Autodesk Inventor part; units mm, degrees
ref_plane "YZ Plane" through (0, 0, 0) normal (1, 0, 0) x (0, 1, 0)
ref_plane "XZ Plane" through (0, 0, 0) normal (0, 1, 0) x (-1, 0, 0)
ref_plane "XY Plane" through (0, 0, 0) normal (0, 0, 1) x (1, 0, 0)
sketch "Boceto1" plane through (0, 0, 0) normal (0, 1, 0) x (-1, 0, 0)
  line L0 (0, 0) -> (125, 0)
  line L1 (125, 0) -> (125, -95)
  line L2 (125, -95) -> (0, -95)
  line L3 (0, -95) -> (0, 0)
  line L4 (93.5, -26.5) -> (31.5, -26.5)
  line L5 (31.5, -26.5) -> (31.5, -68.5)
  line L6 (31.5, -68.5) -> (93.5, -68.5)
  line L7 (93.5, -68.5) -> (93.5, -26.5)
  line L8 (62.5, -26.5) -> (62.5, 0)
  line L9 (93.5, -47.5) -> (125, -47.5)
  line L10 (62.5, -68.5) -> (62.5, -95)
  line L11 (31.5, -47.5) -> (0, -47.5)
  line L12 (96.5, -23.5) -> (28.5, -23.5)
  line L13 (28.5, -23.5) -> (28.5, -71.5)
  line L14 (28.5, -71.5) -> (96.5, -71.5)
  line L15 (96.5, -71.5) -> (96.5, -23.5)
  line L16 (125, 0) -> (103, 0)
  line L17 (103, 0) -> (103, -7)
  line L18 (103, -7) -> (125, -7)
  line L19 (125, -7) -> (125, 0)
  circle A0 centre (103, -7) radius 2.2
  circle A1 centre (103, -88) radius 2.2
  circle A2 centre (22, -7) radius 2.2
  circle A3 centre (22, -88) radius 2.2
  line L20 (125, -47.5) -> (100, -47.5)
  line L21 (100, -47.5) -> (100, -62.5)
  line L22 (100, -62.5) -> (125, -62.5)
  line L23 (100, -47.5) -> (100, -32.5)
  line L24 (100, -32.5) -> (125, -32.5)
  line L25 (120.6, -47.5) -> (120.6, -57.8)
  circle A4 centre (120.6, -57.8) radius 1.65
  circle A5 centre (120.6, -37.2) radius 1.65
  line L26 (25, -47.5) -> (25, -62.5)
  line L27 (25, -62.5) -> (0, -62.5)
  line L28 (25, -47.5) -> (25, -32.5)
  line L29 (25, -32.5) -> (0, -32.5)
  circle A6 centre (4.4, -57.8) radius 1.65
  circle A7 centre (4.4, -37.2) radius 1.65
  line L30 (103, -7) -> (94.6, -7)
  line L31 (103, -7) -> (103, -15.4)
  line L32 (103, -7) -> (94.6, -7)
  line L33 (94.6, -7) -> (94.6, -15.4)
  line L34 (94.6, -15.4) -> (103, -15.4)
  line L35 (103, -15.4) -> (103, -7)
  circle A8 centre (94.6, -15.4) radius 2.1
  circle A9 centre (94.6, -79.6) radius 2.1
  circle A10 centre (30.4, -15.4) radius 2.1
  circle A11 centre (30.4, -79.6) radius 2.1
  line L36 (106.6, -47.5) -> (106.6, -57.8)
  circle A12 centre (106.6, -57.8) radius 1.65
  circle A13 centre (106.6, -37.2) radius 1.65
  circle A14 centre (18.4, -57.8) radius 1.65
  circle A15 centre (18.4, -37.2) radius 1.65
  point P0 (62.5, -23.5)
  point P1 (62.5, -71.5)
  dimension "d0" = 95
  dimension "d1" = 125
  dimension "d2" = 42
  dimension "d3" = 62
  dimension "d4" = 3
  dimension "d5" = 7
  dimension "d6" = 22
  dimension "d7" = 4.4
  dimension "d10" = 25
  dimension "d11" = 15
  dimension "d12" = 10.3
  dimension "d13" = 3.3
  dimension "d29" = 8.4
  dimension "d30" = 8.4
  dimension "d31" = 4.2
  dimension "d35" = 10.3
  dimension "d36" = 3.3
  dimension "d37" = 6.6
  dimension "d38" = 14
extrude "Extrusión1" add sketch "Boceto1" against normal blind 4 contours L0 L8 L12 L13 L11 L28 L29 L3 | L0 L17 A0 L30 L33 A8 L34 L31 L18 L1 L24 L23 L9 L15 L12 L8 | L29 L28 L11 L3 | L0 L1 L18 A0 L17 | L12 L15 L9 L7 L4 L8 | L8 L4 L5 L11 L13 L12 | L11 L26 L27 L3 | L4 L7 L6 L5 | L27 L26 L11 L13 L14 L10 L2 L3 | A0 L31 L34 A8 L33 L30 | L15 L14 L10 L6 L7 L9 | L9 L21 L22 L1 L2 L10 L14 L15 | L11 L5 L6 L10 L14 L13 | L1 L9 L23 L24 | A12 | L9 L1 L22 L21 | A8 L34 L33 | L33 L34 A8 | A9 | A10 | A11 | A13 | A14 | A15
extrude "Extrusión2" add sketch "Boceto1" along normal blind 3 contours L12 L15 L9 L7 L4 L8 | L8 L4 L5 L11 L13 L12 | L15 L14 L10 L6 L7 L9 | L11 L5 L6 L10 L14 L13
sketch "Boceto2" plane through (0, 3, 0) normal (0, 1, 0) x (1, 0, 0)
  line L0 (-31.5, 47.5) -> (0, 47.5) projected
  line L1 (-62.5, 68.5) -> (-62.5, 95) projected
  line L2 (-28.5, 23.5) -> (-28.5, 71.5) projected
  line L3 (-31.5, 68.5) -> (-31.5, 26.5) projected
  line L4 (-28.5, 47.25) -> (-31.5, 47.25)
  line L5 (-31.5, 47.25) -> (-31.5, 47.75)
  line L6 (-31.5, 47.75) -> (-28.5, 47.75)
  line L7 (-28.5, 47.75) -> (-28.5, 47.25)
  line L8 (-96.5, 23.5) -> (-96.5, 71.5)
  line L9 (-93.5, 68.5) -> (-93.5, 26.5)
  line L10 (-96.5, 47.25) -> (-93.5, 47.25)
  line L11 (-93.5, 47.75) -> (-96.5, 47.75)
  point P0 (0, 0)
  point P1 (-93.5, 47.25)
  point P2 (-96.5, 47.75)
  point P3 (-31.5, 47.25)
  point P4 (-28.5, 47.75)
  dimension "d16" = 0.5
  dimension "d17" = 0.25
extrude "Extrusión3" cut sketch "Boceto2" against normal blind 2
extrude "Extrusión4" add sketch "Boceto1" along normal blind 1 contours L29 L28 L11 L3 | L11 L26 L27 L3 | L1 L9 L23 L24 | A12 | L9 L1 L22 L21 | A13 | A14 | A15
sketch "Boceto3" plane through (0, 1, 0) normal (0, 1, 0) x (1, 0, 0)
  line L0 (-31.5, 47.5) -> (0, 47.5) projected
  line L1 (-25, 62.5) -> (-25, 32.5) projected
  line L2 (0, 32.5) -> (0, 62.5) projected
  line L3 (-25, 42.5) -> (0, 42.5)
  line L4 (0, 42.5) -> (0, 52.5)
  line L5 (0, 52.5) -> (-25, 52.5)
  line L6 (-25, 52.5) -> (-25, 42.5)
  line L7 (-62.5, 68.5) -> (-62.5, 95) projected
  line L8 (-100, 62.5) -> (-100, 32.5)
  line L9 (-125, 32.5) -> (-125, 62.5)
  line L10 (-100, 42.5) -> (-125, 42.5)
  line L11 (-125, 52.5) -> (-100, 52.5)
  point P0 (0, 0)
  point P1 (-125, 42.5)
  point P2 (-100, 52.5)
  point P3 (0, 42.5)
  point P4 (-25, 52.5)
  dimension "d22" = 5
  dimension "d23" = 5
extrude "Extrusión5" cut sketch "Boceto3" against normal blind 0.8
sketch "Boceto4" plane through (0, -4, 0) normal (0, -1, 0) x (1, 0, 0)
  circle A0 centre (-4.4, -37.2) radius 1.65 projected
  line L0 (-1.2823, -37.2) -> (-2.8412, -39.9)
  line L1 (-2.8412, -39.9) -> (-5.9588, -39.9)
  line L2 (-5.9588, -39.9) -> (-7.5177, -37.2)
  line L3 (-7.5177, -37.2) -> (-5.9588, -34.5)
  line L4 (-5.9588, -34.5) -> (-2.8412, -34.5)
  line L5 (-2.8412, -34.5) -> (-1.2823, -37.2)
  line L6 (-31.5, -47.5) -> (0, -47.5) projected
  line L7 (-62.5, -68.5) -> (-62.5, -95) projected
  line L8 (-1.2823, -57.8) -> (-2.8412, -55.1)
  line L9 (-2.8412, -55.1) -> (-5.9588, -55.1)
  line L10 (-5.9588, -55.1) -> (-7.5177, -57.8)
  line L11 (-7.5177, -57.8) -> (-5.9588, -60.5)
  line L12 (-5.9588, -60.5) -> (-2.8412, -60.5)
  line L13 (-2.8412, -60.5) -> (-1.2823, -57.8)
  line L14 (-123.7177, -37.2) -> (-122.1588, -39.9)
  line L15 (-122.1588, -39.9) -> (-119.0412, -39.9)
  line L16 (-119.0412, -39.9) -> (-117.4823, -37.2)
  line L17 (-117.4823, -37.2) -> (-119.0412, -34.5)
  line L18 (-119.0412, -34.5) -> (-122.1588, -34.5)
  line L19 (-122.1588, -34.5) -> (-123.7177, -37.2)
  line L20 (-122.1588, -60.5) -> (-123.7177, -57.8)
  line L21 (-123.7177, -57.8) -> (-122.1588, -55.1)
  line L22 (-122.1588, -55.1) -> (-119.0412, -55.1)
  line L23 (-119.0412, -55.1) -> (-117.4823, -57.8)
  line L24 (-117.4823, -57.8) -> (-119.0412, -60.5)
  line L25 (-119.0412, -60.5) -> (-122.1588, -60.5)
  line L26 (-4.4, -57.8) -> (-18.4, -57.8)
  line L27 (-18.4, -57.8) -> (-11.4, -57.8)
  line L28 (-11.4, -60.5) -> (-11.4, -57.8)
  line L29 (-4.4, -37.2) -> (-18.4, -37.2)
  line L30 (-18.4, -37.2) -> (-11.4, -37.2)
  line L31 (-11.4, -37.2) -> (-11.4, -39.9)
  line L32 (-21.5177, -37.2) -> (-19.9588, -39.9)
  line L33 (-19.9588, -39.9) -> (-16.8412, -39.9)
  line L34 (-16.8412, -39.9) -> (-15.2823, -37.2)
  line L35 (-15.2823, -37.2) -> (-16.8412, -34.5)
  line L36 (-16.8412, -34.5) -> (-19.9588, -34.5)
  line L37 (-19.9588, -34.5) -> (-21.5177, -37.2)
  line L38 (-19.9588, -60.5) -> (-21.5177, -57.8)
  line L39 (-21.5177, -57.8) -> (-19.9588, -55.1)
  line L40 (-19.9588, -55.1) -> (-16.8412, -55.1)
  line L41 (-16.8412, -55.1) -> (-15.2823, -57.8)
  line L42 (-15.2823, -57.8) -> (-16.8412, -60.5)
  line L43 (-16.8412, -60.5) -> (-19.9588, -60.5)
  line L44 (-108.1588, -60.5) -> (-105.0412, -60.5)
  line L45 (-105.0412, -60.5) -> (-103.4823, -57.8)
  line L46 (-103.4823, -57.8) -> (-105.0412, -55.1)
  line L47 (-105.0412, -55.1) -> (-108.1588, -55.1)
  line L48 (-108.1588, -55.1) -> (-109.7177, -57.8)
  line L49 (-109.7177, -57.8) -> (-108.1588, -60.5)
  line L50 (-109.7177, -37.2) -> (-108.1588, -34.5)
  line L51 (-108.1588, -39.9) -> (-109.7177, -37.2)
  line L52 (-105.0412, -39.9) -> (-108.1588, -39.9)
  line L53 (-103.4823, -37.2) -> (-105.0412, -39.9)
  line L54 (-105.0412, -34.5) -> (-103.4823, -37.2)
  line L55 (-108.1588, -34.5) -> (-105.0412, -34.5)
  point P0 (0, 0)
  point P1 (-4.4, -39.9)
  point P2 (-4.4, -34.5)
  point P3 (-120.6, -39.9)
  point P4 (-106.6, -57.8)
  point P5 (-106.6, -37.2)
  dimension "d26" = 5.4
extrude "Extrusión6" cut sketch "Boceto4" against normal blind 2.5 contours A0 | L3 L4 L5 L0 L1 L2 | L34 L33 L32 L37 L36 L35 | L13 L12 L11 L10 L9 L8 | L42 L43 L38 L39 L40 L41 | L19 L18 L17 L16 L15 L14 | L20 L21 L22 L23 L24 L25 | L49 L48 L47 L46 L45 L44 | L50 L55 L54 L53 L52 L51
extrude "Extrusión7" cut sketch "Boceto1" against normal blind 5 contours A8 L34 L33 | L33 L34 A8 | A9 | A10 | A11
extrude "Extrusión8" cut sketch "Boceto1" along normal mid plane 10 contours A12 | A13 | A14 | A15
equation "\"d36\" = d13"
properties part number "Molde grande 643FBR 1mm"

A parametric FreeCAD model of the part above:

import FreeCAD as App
import Part
import Sketcher

V = App.Vector
Q = App.Units.Quantity

doc = App.newDocument("Part")
body = doc.addObject("PartDesign::Body", "Body")

# Sketch on XZ plane
sketch1 = doc.addObject("Sketcher::SketchObject", "Sketch")
body.addObject(sketch1)
sketch1.AttachmentSupport = (doc.XZ_Plane, [""])
sketch1.MapMode = "FlatFace"
sketch1.addGeometry([
    Part.LineSegment(V(0, 0, 0), V(0, -95, 0)),  # 0
    Part.LineSegment(V(0, -95, 0), V(-125, -95, 0)),  # 1
    Part.LineSegment(V(-125, -95, 0), V(-125, 0, 0)),  # 2
    Part.LineSegment(V(-125, 0, 0), V(0, 0, 0)),  # 3
    Part.Circle(V(-22, -7, 0), V(0, 0, 1), 2.2),  # 4
    Part.Circle(V(-103, -7, 0), V(0, 0, 1), 2.2),  # 5
    Part.Circle(V(-22, -88, 0), V(0, 0, 1), 2.2),  # 6
    Part.Circle(V(-4.4, -37.2, 0), V(0, 0, 1), 1.6),  # 7
    Part.Circle(V(-120.6, -37.2, 0), V(0, 0, 1), 1.6),  # 8
    Part.Circle(V(-103, -88, 0), V(0, 0, 1), 2.2),  # 9
    Part.Circle(V(-4.4, -57.8, 0), V(0, 0, 1), 1.6),  # 10
    Part.Circle(V(-120.6, -57.8, 0), V(0, 0, 1), 1.6),  # 11
], False)
sketch1.addConstraint([
    Sketcher.Constraint("Coincident", 0, 2, 1, 1),
    Sketcher.Constraint("Coincident", 1, 2, 2, 1),
    Sketcher.Constraint("Coincident", 2, 2, 3, 1),
    Sketcher.Constraint("Coincident", 3, 2, 0, 1),
    Sketcher.Constraint("Vertical", 0),
    Sketcher.Constraint("Horizontal", 1),
    Sketcher.Constraint("Vertical", 2),
    Sketcher.Constraint("Horizontal", 3),
    Sketcher.Constraint("Coincident", 3, 2, -1, 1),
    Sketcher.Constraint("Equal", 4, 5),
    Sketcher.Constraint("Equal", 5, 6),
    Sketcher.Constraint("Equal", 7, 8),
    Sketcher.Constraint("Equal", 6, 9),
    Sketcher.Constraint("Equal", 8, 10),
    Sketcher.Constraint("Equal", 10, 11),
    Sketcher.Constraint("Horizontal", 4, 3, 5, 3),
    Sketcher.Constraint("Horizontal", 7, 3, 8, 3),
    Sketcher.Constraint("Horizontal", 6, 3, 9, 3),
    Sketcher.Constraint("Horizontal", 10, 3, 11, 3),
    Sketcher.Constraint("Vertical", 4, 3, 6, 3),
    Sketcher.Constraint("Vertical", 5, 3, 9, 3),
    Sketcher.Constraint("Vertical", 7, 3, 10, 3),
    Sketcher.Constraint("Vertical", 8, 3, 11, 3),
    Sketcher.Constraint("Diameter", 4, 4.4),
    Sketcher.Constraint("Diameter", 7, 3.3),
    Sketcher.Constraint("DistanceX", 1, 2, 1, 1, 125.0),
    Sketcher.Constraint("DistanceY", 0, 2, 0, 1, 95.0),
    Sketcher.Constraint("DistanceX", 4, 3, -1, 1, 22.0),
    Sketcher.Constraint("DistanceY", 4, 3, -1, 1, 7.0),
    Sketcher.Constraint("DistanceY", 0, 2, 6, 3, 7.0),
    Sketcher.Constraint("DistanceX", 1, 2, 9, 3, 22.0),
    Sketcher.Constraint("DistanceX", 7, 3, -1, 1, 4.4),
    Sketcher.Constraint("DistanceX", 1, 2, 11, 3, 4.4),
    Sketcher.Constraint("DistanceY", 7, 3, -1, 1, 37.2),
    Sketcher.Constraint("DistanceY", 10, 3, -1, 1, 57.8),
])
pad1 = doc.addObject("PartDesign::Pad", "Pad")
body.addObject(pad1)
pad1.Profile = sketch1
pad1.Length = 4

# Sketch on XZ plane
sketch2 = doc.addObject("Sketcher::SketchObject", "Sketch001")
body.addObject(sketch2)
sketch2.AttachmentSupport = (doc.XZ_Plane, [""])
sketch2.MapMode = "FlatFace"
sketch2.addGeometry([
    Part.LineSegment(V(-96, -24, 0), V(-28, -24, 0)),  # 0
    Part.LineSegment(V(-28, -24, 0), V(-28, -72, 0)),  # 1
    Part.LineSegment(V(-28, -72, 0), V(-96, -72, 0)),  # 2
    Part.LineSegment(V(-96, -72, 0), V(-96, -24, 0)),  # 3
    Part.LineSegment(V(-94, -26, 0), V(-94, -68, 0)),  # 4
    Part.LineSegment(V(-94, -68, 0), V(-32, -68, 0)),  # 5
    Part.LineSegment(V(-32, -68, 0), V(-32, -26, 0)),  # 6
    Part.LineSegment(V(-32, -26, 0), V(-94, -26, 0)),  # 7
], False)
sketch2.addConstraint([
    Sketcher.Constraint("Coincident", 0, 2, 1, 1),
    Sketcher.Constraint("Coincident", 1, 2, 2, 1),
    Sketcher.Constraint("Coincident", 2, 2, 3, 1),
    Sketcher.Constraint("Coincident", 3, 2, 0, 1),
    Sketcher.Constraint("Coincident", 4, 2, 5, 1),
    Sketcher.Constraint("Coincident", 5, 2, 6, 1),
    Sketcher.Constraint("Coincident", 6, 2, 7, 1),
    Sketcher.Constraint("Coincident", 7, 2, 4, 1),
    Sketcher.Constraint("Horizontal", 0),
    Sketcher.Constraint("Vertical", 1),
    Sketcher.Constraint("Horizontal", 2),
    Sketcher.Constraint("Vertical", 3),
    Sketcher.Constraint("Vertical", 4),
    Sketcher.Constraint("Horizontal", 5),
    Sketcher.Constraint("Vertical", 6),
    Sketcher.Constraint("Horizontal", 7),
    Sketcher.Constraint("DistanceX", 5, 1, 5, 2, 62.0),
    Sketcher.Constraint("DistanceY", 4, 2, 4, 1, 42.0),
    Sketcher.Constraint("DistanceX", 2, 2, 4, 2, 3.0),
    Sketcher.Constraint("DistanceY", 2, 2, 4, 2, 3.0),
    Sketcher.Constraint("DistanceX", 5, 2, 1, 2, 3.0),
    Sketcher.Constraint("DistanceY", 6, 2, 0, 2, 3.0),
    Sketcher.Constraint("DistanceX", 0, 2, -1, 1, 28.5),
    Sketcher.Constraint("DistanceY", 0, 2, -1, 1, 23.5),
])
pad2 = doc.addObject("PartDesign::Pad", "Pad001")
body.addObject(pad2)
pad2.Profile = sketch2
pad2.Length = 3
pad2.Reversed = True

# Sketch on XZ plane
sketch3 = doc.addObject("Sketcher::SketchObject", "Sketch002")
body.addObject(sketch3)
sketch3.AttachmentSupport = (doc.XZ_Plane, [""])
sketch3.MapMode = "FlatFace"
sketch3.AttachmentOffset = App.Placement(V(0, 0, -3), App.Rotation())
sketch3.addGeometry([
    Part.LineSegment(V(-31.5, -47.8, 0), V(-31.5, -47.2, 0)),  # 0
    Part.LineSegment(V(-31.5, -47.2, 0), V(-28.5, -47.2, 0)),  # 1
    Part.LineSegment(V(-28.5, -47.2, 0), V(-28.5, -47.8, 0)),  # 2
    Part.LineSegment(V(-28.5, -47.8, 0), V(-31.5, -47.8, 0)),  # 3
    Part.LineSegment(V(-96.5, -47.8, 0), V(-96.5, -47.2, 0)),  # 4
    Part.LineSegment(V(-96.5, -47.2, 0), V(-93.5, -47.2, 0)),  # 5
    Part.LineSegment(V(-93.5, -47.2, 0), V(-93.5, -47.8, 0)),  # 6
    Part.LineSegment(V(-93.5, -47.8, 0), V(-96.5, -47.8, 0)),  # 7
], False)
sketch3.addConstraint([
    Sketcher.Constraint("Coincident", 0, 2, 1, 1),
    Sketcher.Constraint("Coincident", 1, 2, 2, 1),
    Sketcher.Constraint("Coincident", 2, 2, 3, 1),
    Sketcher.Constraint("Coincident", 3, 2, 0, 1),
    Sketcher.Constraint("Coincident", 4, 2, 5, 1),
    Sketcher.Constraint("Coincident", 5, 2, 6, 1),
    Sketcher.Constraint("Coincident", 6, 2, 7, 1),
    Sketcher.Constraint("Coincident", 7, 2, 4, 1),
    Sketcher.Constraint("Vertical", 0),
    Sketcher.Constraint("Horizontal", 1),
    Sketcher.Constraint("Vertical", 2),
    Sketcher.Constraint("Horizontal", 3),
    Sketcher.Constraint("Vertical", 4),
    Sketcher.Constraint("Horizontal", 5),
    Sketcher.Constraint("Vertical", 6),
    Sketcher.Constraint("Horizontal", 7),
    Sketcher.Constraint("Horizontal", 1, 2, 4, 2),
    Sketcher.Constraint("Horizontal", 3, 2, 6, 2),
    Sketcher.Constraint("Equal", 3, 5),
    Sketcher.Constraint("DistanceY", 0, 1, 0, 2, 0.5),
    Sketcher.Constraint("DistanceX", 1, 1, 1, 2, 3.0),
    Sketcher.Constraint("DistanceX", 4, 2, 0, 2, 65.0),
    Sketcher.Constraint("DistanceX", 0, 2, -1, 1, 31.5),
    Sketcher.Constraint("DistanceY", 0, 2, -1, 1, 47.25),
])
pocket1 = doc.addObject("PartDesign::Pocket", "Pocket")
body.addObject(pocket1)
pocket1.Profile = sketch3
pocket1.Length = 2
pocket1.Reversed = True

# Sketch on XZ plane
sketch4 = doc.addObject("Sketcher::SketchObject", "Sketch003")
body.addObject(sketch4)
sketch4.AttachmentSupport = (doc.XZ_Plane, [""])
sketch4.MapMode = "FlatFace"
sketch4.addGeometry([
    Part.LineSegment(V(-25, -32.5, 0), V(0, -32.5, 0)),  # 0
    Part.LineSegment(V(0, -32.5, 0), V(0, -62.5, 0)),  # 1
    Part.LineSegment(V(0, -62.5, 0), V(-25, -62.5, 0)),  # 2
    Part.LineSegment(V(-25, -62.5, 0), V(-25, -32.5, 0)),  # 3
    Part.Circle(V(-4.4, -37.2, 0), V(0, 0, 1), 1.6),  # 4
    Part.Circle(V(-4.4, -57.8, 0), V(0, 0, 1), 1.6),  # 5
    Part.LineSegment(V(-125, -32.5, 0), V(-100, -32.5, 0)),  # 6
    Part.LineSegment(V(-100, -32.5, 0), V(-100, -62.5, 0)),  # 7
    Part.LineSegment(V(-100, -62.5, 0), V(-125, -62.5, 0)),  # 8
    Part.LineSegment(V(-125, -62.5, 0), V(-125, -32.5, 0)),  # 9
    Part.Circle(V(-120.6, -37.2, 0), V(0, 0, 1), 1.6),  # 10
    Part.Circle(V(-120.6, -57.8, 0), V(0, 0, 1), 1.6),  # 11
], False)
sketch4.addConstraint([
    Sketcher.Constraint("Coincident", 0, 2, 1, 1),
    Sketcher.Constraint("Coincident", 1, 2, 2, 1),
    Sketcher.Constraint("Coincident", 2, 2, 3, 1),
    Sketcher.Constraint("Coincident", 3, 2, 0, 1),
    Sketcher.Constraint("Coincident", 6, 2, 7, 1),
    Sketcher.Constraint("Coincident", 7, 2, 8, 1),
    Sketcher.Constraint("Coincident", 8, 2, 9, 1),
    Sketcher.Constraint("Coincident", 9, 2, 6, 1),
    Sketcher.Constraint("Horizontal", 0),
    Sketcher.Constraint("Vertical", 1),
    Sketcher.Constraint("Horizontal", 2),
    Sketcher.Constraint("Vertical", 3),
    Sketcher.Constraint("Horizontal", 6),
    Sketcher.Constraint("Vertical", 7),
    Sketcher.Constraint("Horizontal", 8),
    Sketcher.Constraint("Vertical", 9),
    Sketcher.Constraint("Equal", 4, 5),
    Sketcher.Constraint("Equal", 5, 10),
    Sketcher.Constraint("Equal", 10, 11),
    Sketcher.Constraint("PointOnObject", 0, 2, -2),
    Sketcher.Constraint("Horizontal", 4, 3, 10, 3),
    Sketcher.Constraint("Horizontal", 5, 3, 11, 3),
    Sketcher.Constraint("Horizontal", 3, 2, 6, 2),
    Sketcher.Constraint("Horizontal", 2, 2, 7, 2),
    Sketcher.Constraint("Vertical", 4, 3, 5, 3),
    Sketcher.Constraint("Vertical", 10, 3, 11, 3),
    Sketcher.Constraint("Equal", 2, 6),
    Sketcher.Constraint("Diameter", 4, 3.3),
    Sketcher.Constraint("DistanceX", 0, 1, 0, 2, 25.0),
    Sketcher.Constraint("DistanceX", 8, 2, -1, 1, 125.0),
    Sketcher.Constraint("DistanceX", 4, 3, -1, 1, 4.4),
    Sketcher.Constraint("DistanceX", 8, 2, 11, 3, 4.4),
    Sketcher.Constraint("DistanceY", 1, 2, 1, 1, 30.0),
    Sketcher.Constraint("DistanceY", 4, 3, -1, 1, 37.2),
    Sketcher.Constraint("DistanceY", 5, 3, -1, 1, 57.8),
    Sketcher.Constraint("DistanceY", 0, 2, -1, 1, 32.5),
])
pad3 = doc.addObject("PartDesign::Pad", "Pad002")
body.addObject(pad3)
pad3.Profile = sketch4
pad3.Length = 1
pad3.Reversed = True

# Sketch on XZ plane
sketch5 = doc.addObject("Sketcher::SketchObject", "Sketch004")
body.addObject(sketch5)
sketch5.AttachmentSupport = (doc.XZ_Plane, [""])
sketch5.MapMode = "FlatFace"
sketch5.AttachmentOffset = App.Placement(V(0, 0, -1), App.Rotation())
sketch5.addGeometry([
    Part.LineSegment(V(-25, -52, 0), V(-25, -42, 0)),  # 0
    Part.LineSegment(V(-25, -42, 0), V(0, -42, 0)),  # 1
    Part.LineSegment(V(0, -42, 0), V(0, -52, 0)),  # 2
    Part.LineSegment(V(0, -52, 0), V(-25, -52, 0)),  # 3
    Part.LineSegment(V(-100, -42, 0), V(-100, -52, 0)),  # 4
    Part.LineSegment(V(-100, -52, 0), V(-125, -52, 0)),  # 5
    Part.LineSegment(V(-125, -52, 0), V(-125, -42, 0)),  # 6
    Part.LineSegment(V(-125, -42, 0), V(-100, -42, 0)),  # 7
], False)
sketch5.addConstraint([
    Sketcher.Constraint("Coincident", 0, 2, 1, 1),
    Sketcher.Constraint("Coincident", 1, 2, 2, 1),
    Sketcher.Constraint("Coincident", 2, 2, 3, 1),
    Sketcher.Constraint("Coincident", 3, 2, 0, 1),
    Sketcher.Constraint("Coincident", 4, 2, 5, 1),
    Sketcher.Constraint("Coincident", 5, 2, 6, 1),
    Sketcher.Constraint("Coincident", 6, 2, 7, 1),
    Sketcher.Constraint("Coincident", 7, 2, 4, 1),
    Sketcher.Constraint("Vertical", 0),
    Sketcher.Constraint("Horizontal", 1),
    Sketcher.Constraint("Vertical", 2),
    Sketcher.Constraint("Horizontal", 3),
    Sketcher.Constraint("Vertical", 4),
    Sketcher.Constraint("Horizontal", 5),
    Sketcher.Constraint("Vertical", 6),
    Sketcher.Constraint("Horizontal", 7),
    Sketcher.Constraint("PointOnObject", 1, 2, -2),
    Sketcher.Constraint("Horizontal", 3, 2, 4, 2),
    Sketcher.Constraint("Horizontal", 1, 2, 6, 2),
    Sketcher.Constraint("Equal", 3, 5),
    Sketcher.Constraint("DistanceX", 1, 1, 1, 2, 25.0),
    Sketcher.Constraint("DistanceY", 0, 1, 0, 2, 10.0),
    Sketcher.Constraint("DistanceX", 4, 2, -1, 1, 100.0),
    Sketcher.Constraint("DistanceY", 0, 2, -1, 1, 42.5),
])
pocket2 = doc.addObject("PartDesign::Pocket", "Pocket001")
body.addObject(pocket2)
pocket2.Profile = sketch5
pocket2.Length = 0.8
pocket2.Reversed = True

# Sketch on XZ plane
sketch6 = doc.addObject("Sketcher::SketchObject", "Sketch005")
body.addObject(sketch6)
sketch6.AttachmentSupport = (doc.XZ_Plane, [""])
sketch6.MapMode = "FlatFace"
sketch6.AttachmentOffset = App.Placement(V(0, 0, 4), App.Rotation())
sketch6.addGeometry([
    Part.LineSegment(V(-6, -34.5, 0), V(-7.5, -37.2, 0)),  # 0
    Part.LineSegment(V(-7.5, -37.2, 0), V(-6, -39.9, 0)),  # 1
    Part.LineSegment(V(-6, -39.9, 0), V(-2.8, -39.9, 0)),  # 2
    Part.LineSegment(V(-2.8, -39.9, 0), V(-1.3, -37.2, 0)),  # 3
    Part.LineSegment(V(-1.3, -37.2, 0), V(-2.8, -34.5, 0)),  # 4
    Part.LineSegment(V(-2.8, -34.5, 0), V(-6, -34.5, 0)),  # 5
    Part.LineSegment(V(-16.8, -39.9, 0), V(-15.3, -37.2, 0)),  # 6
    Part.LineSegment(V(-15.3, -37.2, 0), V(-16.8, -34.5, 0)),  # 7
    Part.LineSegment(V(-16.8, -34.5, 0), V(-20, -34.5, 0)),  # 8
    Part.LineSegment(V(-20, -34.5, 0), V(-21.5, -37.2, 0)),  # 9
    Part.LineSegment(V(-21.5, -37.2, 0), V(-20, -39.9, 0)),  # 10
    Part.LineSegment(V(-20, -39.9, 0), V(-16.8, -39.9, 0)),  # 11
    Part.LineSegment(V(-2.8, -60.5, 0), V(-1.3, -57.8, 0)),  # 12
    Part.LineSegment(V(-1.3, -57.8, 0), V(-2.8, -55.1, 0)),  # 13
    Part.LineSegment(V(-2.8, -55.1, 0), V(-6, -55.1, 0)),  # 14
    Part.LineSegment(V(-6, -55.1, 0), V(-7.5, -57.8, 0)),  # 15
    Part.LineSegment(V(-7.5, -57.8, 0), V(-6, -60.5, 0)),  # 16
    Part.LineSegment(V(-6, -60.5, 0), V(-2.8, -60.5, 0)),  # 17
    Part.LineSegment(V(-16.8, -60.5, 0), V(-15.3, -57.8, 0)),  # 18
    Part.LineSegment(V(-15.3, -57.8, 0), V(-16.8, -55.1, 0)),  # 19
    Part.LineSegment(V(-16.8, -55.1, 0), V(-20, -55.1, 0)),  # 20
    Part.LineSegment(V(-20, -55.1, 0), V(-21.5, -57.8, 0)),  # 21
    Part.LineSegment(V(-21.5, -57.8, 0), V(-20, -60.5, 0)),  # 22
    Part.LineSegment(V(-20, -60.5, 0), V(-16.8, -60.5, 0)),  # 23
    Part.LineSegment(V(-122.2, -34.5, 0), V(-123.7, -37.2, 0)),  # 24
    Part.LineSegment(V(-123.7, -37.2, 0), V(-122.2, -39.9, 0)),  # 25
    Part.LineSegment(V(-122.2, -39.9, 0), V(-119, -39.9, 0)),  # 26
    Part.LineSegment(V(-119, -39.9, 0), V(-117.5, -37.2, 0)),  # 27
    Part.LineSegment(V(-117.5, -37.2, 0), V(-119, -34.5, 0)),  # 28
    Part.LineSegment(V(-119, -34.5, 0), V(-122.2, -34.5, 0)),  # 29
    Part.LineSegment(V(-123.7, -57.8, 0), V(-122.2, -60.5, 0)),  # 30
    Part.LineSegment(V(-122.2, -60.5, 0), V(-119, -60.5, 0)),  # 31
    Part.LineSegment(V(-119, -60.5, 0), V(-117.5, -57.8, 0)),  # 32
    Part.LineSegment(V(-117.5, -57.8, 0), V(-119, -55.1, 0)),  # 33
    Part.LineSegment(V(-119, -55.1, 0), V(-122.2, -55.1, 0)),  # 34
    Part.LineSegment(V(-122.2, -55.1, 0), V(-123.7, -57.8, 0)),  # 35
    Part.LineSegment(V(-109.7, -57.8, 0), V(-108.2, -60.5, 0)),  # 36
    Part.LineSegment(V(-108.2, -60.5, 0), V(-105, -60.5, 0)),  # 37
    Part.LineSegment(V(-105, -60.5, 0), V(-103.5, -57.8, 0)),  # 38
    Part.LineSegment(V(-103.5, -57.8, 0), V(-105, -55.1, 0)),  # 39
    Part.LineSegment(V(-105, -55.1, 0), V(-108.2, -55.1, 0)),  # 40
    Part.LineSegment(V(-108.2, -55.1, 0), V(-109.7, -57.8, 0)),  # 41
    Part.LineSegment(V(-108.2, -34.5, 0), V(-109.7, -37.2, 0)),  # 42
    Part.LineSegment(V(-109.7, -37.2, 0), V(-108.2, -39.9, 0)),  # 43
    Part.LineSegment(V(-108.2, -39.9, 0), V(-105, -39.9, 0)),  # 44
    Part.LineSegment(V(-105, -39.9, 0), V(-103.5, -37.2, 0)),  # 45
    Part.LineSegment(V(-103.5, -37.2, 0), V(-105, -34.5, 0)),  # 46
    Part.LineSegment(V(-105, -34.5, 0), V(-108.2, -34.5, 0)),  # 47
], False)
sketch6.addConstraint([
    Sketcher.Constraint("Coincident", 0, 2, 1, 1),
    Sketcher.Constraint("Coincident", 1, 2, 2, 1),
    Sketcher.Constraint("Coincident", 2, 2, 3, 1),
    Sketcher.Constraint("Coincident", 3, 2, 4, 1),
    Sketcher.Constraint("Coincident", 4, 2, 5, 1),
    Sketcher.Constraint("Coincident", 5, 2, 0, 1),
    Sketcher.Constraint("Coincident", 6, 2, 7, 1),
    Sketcher.Constraint("Coincident", 7, 2, 8, 1),
    Sketcher.Constraint("Coincident", 8, 2, 9, 1),
    Sketcher.Constraint("Coincident", 9, 2, 10, 1),
    Sketcher.Constraint("Coincident", 10, 2, 11, 1),
    Sketcher.Constraint("Coincident", 11, 2, 6, 1),
    Sketcher.Constraint("Coincident", 12, 2, 13, 1),
    Sketcher.Constraint("Coincident", 13, 2, 14, 1),
    Sketcher.Constraint("Coincident", 14, 2, 15, 1),
    Sketcher.Constraint("Coincident", 15, 2, 16, 1),
    Sketcher.Constraint("Coincident", 16, 2, 17, 1),
    Sketcher.Constraint("Coincident", 17, 2, 12, 1),
    Sketcher.Constraint("Coincident", 18, 2, 19, 1),
    Sketcher.Constraint("Coincident", 19, 2, 20, 1),
    Sketcher.Constraint("Coincident", 20, 2, 21, 1),
    Sketcher.Constraint("Coincident", 21, 2, 22, 1),
    Sketcher.Constraint("Coincident", 22, 2, 23, 1),
    Sketcher.Constraint("Coincident", 23, 2, 18, 1),
    Sketcher.Constraint("Coincident", 24, 2, 25, 1),
    Sketcher.Constraint("Coincident", 25, 2, 26, 1),
    Sketcher.Constraint("Coincident", 26, 2, 27, 1),
    Sketcher.Constraint("Coincident", 27, 2, 28, 1),
    Sketcher.Constraint("Coincident", 28, 2, 29, 1),
    Sketcher.Constraint("Coincident", 29, 2, 24, 1),
    Sketcher.Constraint("Coincident", 30, 2, 31, 1),
    Sketcher.Constraint("Coincident", 31, 2, 32, 1),
    Sketcher.Constraint("Coincident", 32, 2, 33, 1),
    Sketcher.Constraint("Coincident", 33, 2, 34, 1),
    Sketcher.Constraint("Coincident", 34, 2, 35, 1),
    Sketcher.Constraint("Coincident", 35, 2, 30, 1),
    Sketcher.Constraint("Coincident", 36, 2, 37, 1),
    Sketcher.Constraint("Coincident", 37, 2, 38, 1),
    Sketcher.Constraint("Coincident", 38, 2, 39, 1),
    Sketcher.Constraint("Coincident", 39, 2, 40, 1),
    Sketcher.Constraint("Coincident", 40, 2, 41, 1),
    Sketcher.Constraint("Coincident", 41, 2, 36, 1),
    Sketcher.Constraint("Coincident", 42, 2, 43, 1),
    Sketcher.Constraint("Coincident", 43, 2, 44, 1),
    Sketcher.Constraint("Coincident", 44, 2, 45, 1),
    Sketcher.Constraint("Coincident", 45, 2, 46, 1),
    Sketcher.Constraint("Coincident", 46, 2, 47, 1),
    Sketcher.Constraint("Coincident", 47, 2, 42, 1),
    Sketcher.Constraint("Horizontal", 2),
    Sketcher.Constraint("Horizontal", 5),
    Sketcher.Constraint("Horizontal", 8),
    Sketcher.Constraint("Horizontal", 11),
    Sketcher.Constraint("Horizontal", 14),
    Sketcher.Constraint("Horizontal", 17),
    Sketcher.Constraint("Horizontal", 20),
    Sketcher.Constraint("Horizontal", 23),
    Sketcher.Constraint("Horizontal", 26),
    Sketcher.Constraint("Horizontal", 29),
    Sketcher.Constraint("Horizontal", 31),
    Sketcher.Constraint("Horizontal", 34),
    Sketcher.Constraint("Horizontal", 37),
    Sketcher.Constraint("Horizontal", 40),
    Sketcher.Constraint("Horizontal", 44),
    Sketcher.Constraint("Horizontal", 47),
    Sketcher.Constraint("Parallel", 0, 3),
    Sketcher.Constraint("Parallel", 1, 4),
    Sketcher.Constraint("Parallel", 3, 6),
    Sketcher.Constraint("Parallel", 4, 7),
    Sketcher.Constraint("Parallel", 6, 9),
    Sketcher.Constraint("Parallel", 7, 10),
    Sketcher.Constraint("Parallel", 9, 12),
    Sketcher.Constraint("Parallel", 10, 13),
    Sketcher.Constraint("Parallel", 12, 15),
    Sketcher.Constraint("Parallel", 13, 16),
    Sketcher.Constraint("Parallel", 15, 18),
    Sketcher.Constraint("Parallel", 16, 19),
    Sketcher.Constraint("Parallel", 18, 21),
    Sketcher.Constraint("Parallel", 19, 22),
    Sketcher.Constraint("Parallel", 21, 24),
    Sketcher.Constraint("Parallel", 22, 25),
    Sketcher.Constraint("Parallel", 24, 27),
    Sketcher.Constraint("Parallel", 25, 28),
    Sketcher.Constraint("Parallel", 28, 30),
    Sketcher.Constraint("Parallel", 27, 32),
    Sketcher.Constraint("Parallel", 30, 33),
    Sketcher.Constraint("Parallel", 32, 35),
    Sketcher.Constraint("Parallel", 33, 36),
    Sketcher.Constraint("Parallel", 35, 38),
    Sketcher.Constraint("Parallel", 36, 39),
    Sketcher.Constraint("Parallel", 38, 41),
    Sketcher.Constraint("Parallel", 41, 42),
    Sketcher.Constraint("Parallel", 39, 43),
    Sketcher.Constraint("Parallel", 42, 45),
    Sketcher.Constraint("Parallel", 43, 46),
    Sketcher.Constraint("Horizontal", 0, 2, 3, 2),
    Sketcher.Constraint("Horizontal", 3, 2, 6, 2),
    Sketcher.Constraint("Horizontal", 5, 2, 7, 2),
    Sketcher.Constraint("Horizontal", 6, 2, 9, 2),
    Sketcher.Constraint("Horizontal", 2, 2, 10, 2),
    Sketcher.Constraint("Horizontal", 12, 2, 15, 2),
    Sketcher.Constraint("Horizontal", 15, 2, 18, 2),
    Sketcher.Constraint("Horizontal", 14, 2, 19, 2),
    Sketcher.Constraint("Horizontal", 18, 2, 21, 2),
    Sketcher.Constraint("Horizontal", 17, 2, 22, 2),
    Sketcher.Constraint("Horizontal", 9, 2, 24, 2),
    Sketcher.Constraint("Horizontal", 11, 2, 25, 2),
    Sketcher.Constraint("Horizontal", 24, 2, 27, 2),
    Sketcher.Constraint("Horizontal", 8, 2, 28, 2),
    Sketcher.Constraint("Horizontal", 23, 2, 30, 2),
    Sketcher.Constraint("Horizontal", 21, 2, 32, 2),
    Sketcher.Constraint("Horizontal", 20, 2, 33, 2),
    Sketcher.Constraint("Horizontal", 32, 2, 35, 2),
    Sketcher.Constraint("Horizontal", 31, 2, 36, 2),
    Sketcher.Constraint("Horizontal", 35, 2, 38, 2),
    Sketcher.Constraint("Horizontal", 34, 2, 39, 2),
    Sketcher.Constraint("Horizontal", 38, 2, 41, 2),
    Sketcher.Constraint("Horizontal", 27, 2, 42, 2),
    Sketcher.Constraint("Horizontal", 26, 2, 43, 2),
    Sketcher.Constraint("Horizontal", 42, 2, 45, 2),
    Sketcher.Constraint("Horizontal", 29, 2, 46, 2),
    Sketcher.Constraint("Vertical", 2, 2, 4, 2),
    Sketcher.Constraint("Vertical", 1, 2, 5, 2),
    Sketcher.Constraint("Vertical", 3, 2, 12, 2),
    Sketcher.Constraint("Vertical", 4, 2, 13, 2),
    Sketcher.Constraint("Vertical", 5, 2, 14, 2),
    Sketcher.Constraint("Vertical", 14, 2, 16, 2),
    Sketcher.Constraint("Vertical", 6, 2, 18, 2),
    Sketcher.Constraint("Vertical", 10, 2, 20, 2),
    Sketcher.Constraint("Vertical", 29, 2, 30, 2),
    Sketcher.Constraint("Vertical", 28, 2, 31, 2),
    Sketcher.Constraint("Vertical", 41, 2, 42, 2),
    Sketcher.Constraint("Vertical", 39, 2, 44, 2),
    Sketcher.Constraint("Equal", 5, 8),
    Sketcher.Constraint("Equal", 23, 26),
    Sketcher.Constraint("Equal", 34, 37),
    Sketcher.Constraint("DistanceY", 2, 2, 4, 2, 5.4),
    Sketcher.Constraint("Angle", 0, Q("-120.0009 deg")),
    Sketcher.Constraint("DistanceX", 7, 2, 4, 2, 14.0),
    Sketcher.Constraint("DistanceY", 30, 2, 29, 2, 26.0),
    Sketcher.Constraint("DistanceX", 30, 2, 36, 2, 14.0),
    Sketcher.Constraint("DistanceY", 0, 2, -1, 1, 37.2),
    Sketcher.Constraint("DistanceX", 24, 2, 9, 2, 102.2),
    Sketcher.Constraint("DistanceX", 2, 1, 2, 2, 3.1176),
    Sketcher.Constraint("DistanceX", 0, 2, -1, 1, 7.5177),
])
pocket3 = doc.addObject("PartDesign::Pocket", "Pocket002")
body.addObject(pocket3)
pocket3.Profile = sketch6
pocket3.Length = 2.5

# Sketch on XZ plane
sketch7 = doc.addObject("Sketcher::SketchObject", "Sketch006")
body.addObject(sketch7)
sketch7.AttachmentSupport = (doc.XZ_Plane, [""])
sketch7.MapMode = "FlatFace"
sketch7.addGeometry([
    Part.Circle(V(-94.6, -15.4, 0), V(0, 0, 1), 2.1),
    Part.Circle(V(-94.6, -79.6, 0), V(0, 0, 1), 2.1),
    Part.Circle(V(-30.4, -15.4, 0), V(0, 0, 1), 2.1),
    Part.Circle(V(-30.4, -79.6, 0), V(0, 0, 1), 2.1),
], False)
sketch7.addConstraint([
    Sketcher.Constraint("Equal", 0, 1),
    Sketcher.Constraint("Equal", 1, 2),
    Sketcher.Constraint("Equal", 2, 3),
    Sketcher.Constraint("Horizontal", 0, 3, 2, 3),
    Sketcher.Constraint("Horizontal", 1, 3, 3, 3),
    Sketcher.Constraint("Vertical", 0, 3, 1, 3),
    Sketcher.Constraint("Vertical", 2, 3, 3, 3),
    Sketcher.Constraint("Diameter", 0, 4.2),
    Sketcher.Constraint("DistanceX", 0, 3, -1, 1, 94.6),
    Sketcher.Constraint("DistanceY", 0, 3, -1, 1, 15.4),
    Sketcher.Constraint("DistanceY", 1, 3, -1, 1, 79.6),
    Sketcher.Constraint("DistanceX", 2, 3, -1, 1, 30.4),
])
pocket4 = doc.addObject("PartDesign::Pocket", "Pocket003")
body.addObject(pocket4)
pocket4.Profile = sketch7
pocket4.Length = 5
pocket4.Reversed = True

# Sketch on XZ plane
sketch8 = doc.addObject("Sketcher::SketchObject", "Sketch007")
body.addObject(sketch8)
sketch8.AttachmentSupport = (doc.XZ_Plane, [""])
sketch8.MapMode = "FlatFace"
sketch8.addGeometry([
    Part.Circle(V(-106.6, -57.8, 0), V(0, 0, 1), 1.6),
    Part.Circle(V(-106.6, -37.2, 0), V(0, 0, 1), 1.6),
    Part.Circle(V(-18.4, -57.8, 0), V(0, 0, 1), 1.6),
    Part.Circle(V(-18.4, -37.2, 0), V(0, 0, 1), 1.6),
], False)
sketch8.addConstraint([
    Sketcher.Constraint("Equal", 0, 1),
    Sketcher.Constraint("Equal", 1, 2),
    Sketcher.Constraint("Equal", 2, 3),
    Sketcher.Constraint("Horizontal", 0, 3, 2, 3),
    Sketcher.Constraint("Horizontal", 1, 3, 3, 3),
    Sketcher.Constraint("Vertical", 0, 3, 1, 3),
    Sketcher.Constraint("Vertical", 2, 3, 3, 3),
    Sketcher.Constraint("Diameter", 0, 3.3),
    Sketcher.Constraint("DistanceX", 0, 3, -1, 1, 106.6),
    Sketcher.Constraint("DistanceY", 0, 3, -1, 1, 57.8),
    Sketcher.Constraint("DistanceY", 1, 3, -1, 1, 37.2),
    Sketcher.Constraint("DistanceX", 2, 3, -1, 1, 18.4),
])
pocket5 = doc.addObject("PartDesign::Pocket", "Pocket004")
body.addObject(pocket5)
pocket5.Profile = sketch8
pocket5.Length = 10
pocket5.Midplane = True

doc.recompute()
